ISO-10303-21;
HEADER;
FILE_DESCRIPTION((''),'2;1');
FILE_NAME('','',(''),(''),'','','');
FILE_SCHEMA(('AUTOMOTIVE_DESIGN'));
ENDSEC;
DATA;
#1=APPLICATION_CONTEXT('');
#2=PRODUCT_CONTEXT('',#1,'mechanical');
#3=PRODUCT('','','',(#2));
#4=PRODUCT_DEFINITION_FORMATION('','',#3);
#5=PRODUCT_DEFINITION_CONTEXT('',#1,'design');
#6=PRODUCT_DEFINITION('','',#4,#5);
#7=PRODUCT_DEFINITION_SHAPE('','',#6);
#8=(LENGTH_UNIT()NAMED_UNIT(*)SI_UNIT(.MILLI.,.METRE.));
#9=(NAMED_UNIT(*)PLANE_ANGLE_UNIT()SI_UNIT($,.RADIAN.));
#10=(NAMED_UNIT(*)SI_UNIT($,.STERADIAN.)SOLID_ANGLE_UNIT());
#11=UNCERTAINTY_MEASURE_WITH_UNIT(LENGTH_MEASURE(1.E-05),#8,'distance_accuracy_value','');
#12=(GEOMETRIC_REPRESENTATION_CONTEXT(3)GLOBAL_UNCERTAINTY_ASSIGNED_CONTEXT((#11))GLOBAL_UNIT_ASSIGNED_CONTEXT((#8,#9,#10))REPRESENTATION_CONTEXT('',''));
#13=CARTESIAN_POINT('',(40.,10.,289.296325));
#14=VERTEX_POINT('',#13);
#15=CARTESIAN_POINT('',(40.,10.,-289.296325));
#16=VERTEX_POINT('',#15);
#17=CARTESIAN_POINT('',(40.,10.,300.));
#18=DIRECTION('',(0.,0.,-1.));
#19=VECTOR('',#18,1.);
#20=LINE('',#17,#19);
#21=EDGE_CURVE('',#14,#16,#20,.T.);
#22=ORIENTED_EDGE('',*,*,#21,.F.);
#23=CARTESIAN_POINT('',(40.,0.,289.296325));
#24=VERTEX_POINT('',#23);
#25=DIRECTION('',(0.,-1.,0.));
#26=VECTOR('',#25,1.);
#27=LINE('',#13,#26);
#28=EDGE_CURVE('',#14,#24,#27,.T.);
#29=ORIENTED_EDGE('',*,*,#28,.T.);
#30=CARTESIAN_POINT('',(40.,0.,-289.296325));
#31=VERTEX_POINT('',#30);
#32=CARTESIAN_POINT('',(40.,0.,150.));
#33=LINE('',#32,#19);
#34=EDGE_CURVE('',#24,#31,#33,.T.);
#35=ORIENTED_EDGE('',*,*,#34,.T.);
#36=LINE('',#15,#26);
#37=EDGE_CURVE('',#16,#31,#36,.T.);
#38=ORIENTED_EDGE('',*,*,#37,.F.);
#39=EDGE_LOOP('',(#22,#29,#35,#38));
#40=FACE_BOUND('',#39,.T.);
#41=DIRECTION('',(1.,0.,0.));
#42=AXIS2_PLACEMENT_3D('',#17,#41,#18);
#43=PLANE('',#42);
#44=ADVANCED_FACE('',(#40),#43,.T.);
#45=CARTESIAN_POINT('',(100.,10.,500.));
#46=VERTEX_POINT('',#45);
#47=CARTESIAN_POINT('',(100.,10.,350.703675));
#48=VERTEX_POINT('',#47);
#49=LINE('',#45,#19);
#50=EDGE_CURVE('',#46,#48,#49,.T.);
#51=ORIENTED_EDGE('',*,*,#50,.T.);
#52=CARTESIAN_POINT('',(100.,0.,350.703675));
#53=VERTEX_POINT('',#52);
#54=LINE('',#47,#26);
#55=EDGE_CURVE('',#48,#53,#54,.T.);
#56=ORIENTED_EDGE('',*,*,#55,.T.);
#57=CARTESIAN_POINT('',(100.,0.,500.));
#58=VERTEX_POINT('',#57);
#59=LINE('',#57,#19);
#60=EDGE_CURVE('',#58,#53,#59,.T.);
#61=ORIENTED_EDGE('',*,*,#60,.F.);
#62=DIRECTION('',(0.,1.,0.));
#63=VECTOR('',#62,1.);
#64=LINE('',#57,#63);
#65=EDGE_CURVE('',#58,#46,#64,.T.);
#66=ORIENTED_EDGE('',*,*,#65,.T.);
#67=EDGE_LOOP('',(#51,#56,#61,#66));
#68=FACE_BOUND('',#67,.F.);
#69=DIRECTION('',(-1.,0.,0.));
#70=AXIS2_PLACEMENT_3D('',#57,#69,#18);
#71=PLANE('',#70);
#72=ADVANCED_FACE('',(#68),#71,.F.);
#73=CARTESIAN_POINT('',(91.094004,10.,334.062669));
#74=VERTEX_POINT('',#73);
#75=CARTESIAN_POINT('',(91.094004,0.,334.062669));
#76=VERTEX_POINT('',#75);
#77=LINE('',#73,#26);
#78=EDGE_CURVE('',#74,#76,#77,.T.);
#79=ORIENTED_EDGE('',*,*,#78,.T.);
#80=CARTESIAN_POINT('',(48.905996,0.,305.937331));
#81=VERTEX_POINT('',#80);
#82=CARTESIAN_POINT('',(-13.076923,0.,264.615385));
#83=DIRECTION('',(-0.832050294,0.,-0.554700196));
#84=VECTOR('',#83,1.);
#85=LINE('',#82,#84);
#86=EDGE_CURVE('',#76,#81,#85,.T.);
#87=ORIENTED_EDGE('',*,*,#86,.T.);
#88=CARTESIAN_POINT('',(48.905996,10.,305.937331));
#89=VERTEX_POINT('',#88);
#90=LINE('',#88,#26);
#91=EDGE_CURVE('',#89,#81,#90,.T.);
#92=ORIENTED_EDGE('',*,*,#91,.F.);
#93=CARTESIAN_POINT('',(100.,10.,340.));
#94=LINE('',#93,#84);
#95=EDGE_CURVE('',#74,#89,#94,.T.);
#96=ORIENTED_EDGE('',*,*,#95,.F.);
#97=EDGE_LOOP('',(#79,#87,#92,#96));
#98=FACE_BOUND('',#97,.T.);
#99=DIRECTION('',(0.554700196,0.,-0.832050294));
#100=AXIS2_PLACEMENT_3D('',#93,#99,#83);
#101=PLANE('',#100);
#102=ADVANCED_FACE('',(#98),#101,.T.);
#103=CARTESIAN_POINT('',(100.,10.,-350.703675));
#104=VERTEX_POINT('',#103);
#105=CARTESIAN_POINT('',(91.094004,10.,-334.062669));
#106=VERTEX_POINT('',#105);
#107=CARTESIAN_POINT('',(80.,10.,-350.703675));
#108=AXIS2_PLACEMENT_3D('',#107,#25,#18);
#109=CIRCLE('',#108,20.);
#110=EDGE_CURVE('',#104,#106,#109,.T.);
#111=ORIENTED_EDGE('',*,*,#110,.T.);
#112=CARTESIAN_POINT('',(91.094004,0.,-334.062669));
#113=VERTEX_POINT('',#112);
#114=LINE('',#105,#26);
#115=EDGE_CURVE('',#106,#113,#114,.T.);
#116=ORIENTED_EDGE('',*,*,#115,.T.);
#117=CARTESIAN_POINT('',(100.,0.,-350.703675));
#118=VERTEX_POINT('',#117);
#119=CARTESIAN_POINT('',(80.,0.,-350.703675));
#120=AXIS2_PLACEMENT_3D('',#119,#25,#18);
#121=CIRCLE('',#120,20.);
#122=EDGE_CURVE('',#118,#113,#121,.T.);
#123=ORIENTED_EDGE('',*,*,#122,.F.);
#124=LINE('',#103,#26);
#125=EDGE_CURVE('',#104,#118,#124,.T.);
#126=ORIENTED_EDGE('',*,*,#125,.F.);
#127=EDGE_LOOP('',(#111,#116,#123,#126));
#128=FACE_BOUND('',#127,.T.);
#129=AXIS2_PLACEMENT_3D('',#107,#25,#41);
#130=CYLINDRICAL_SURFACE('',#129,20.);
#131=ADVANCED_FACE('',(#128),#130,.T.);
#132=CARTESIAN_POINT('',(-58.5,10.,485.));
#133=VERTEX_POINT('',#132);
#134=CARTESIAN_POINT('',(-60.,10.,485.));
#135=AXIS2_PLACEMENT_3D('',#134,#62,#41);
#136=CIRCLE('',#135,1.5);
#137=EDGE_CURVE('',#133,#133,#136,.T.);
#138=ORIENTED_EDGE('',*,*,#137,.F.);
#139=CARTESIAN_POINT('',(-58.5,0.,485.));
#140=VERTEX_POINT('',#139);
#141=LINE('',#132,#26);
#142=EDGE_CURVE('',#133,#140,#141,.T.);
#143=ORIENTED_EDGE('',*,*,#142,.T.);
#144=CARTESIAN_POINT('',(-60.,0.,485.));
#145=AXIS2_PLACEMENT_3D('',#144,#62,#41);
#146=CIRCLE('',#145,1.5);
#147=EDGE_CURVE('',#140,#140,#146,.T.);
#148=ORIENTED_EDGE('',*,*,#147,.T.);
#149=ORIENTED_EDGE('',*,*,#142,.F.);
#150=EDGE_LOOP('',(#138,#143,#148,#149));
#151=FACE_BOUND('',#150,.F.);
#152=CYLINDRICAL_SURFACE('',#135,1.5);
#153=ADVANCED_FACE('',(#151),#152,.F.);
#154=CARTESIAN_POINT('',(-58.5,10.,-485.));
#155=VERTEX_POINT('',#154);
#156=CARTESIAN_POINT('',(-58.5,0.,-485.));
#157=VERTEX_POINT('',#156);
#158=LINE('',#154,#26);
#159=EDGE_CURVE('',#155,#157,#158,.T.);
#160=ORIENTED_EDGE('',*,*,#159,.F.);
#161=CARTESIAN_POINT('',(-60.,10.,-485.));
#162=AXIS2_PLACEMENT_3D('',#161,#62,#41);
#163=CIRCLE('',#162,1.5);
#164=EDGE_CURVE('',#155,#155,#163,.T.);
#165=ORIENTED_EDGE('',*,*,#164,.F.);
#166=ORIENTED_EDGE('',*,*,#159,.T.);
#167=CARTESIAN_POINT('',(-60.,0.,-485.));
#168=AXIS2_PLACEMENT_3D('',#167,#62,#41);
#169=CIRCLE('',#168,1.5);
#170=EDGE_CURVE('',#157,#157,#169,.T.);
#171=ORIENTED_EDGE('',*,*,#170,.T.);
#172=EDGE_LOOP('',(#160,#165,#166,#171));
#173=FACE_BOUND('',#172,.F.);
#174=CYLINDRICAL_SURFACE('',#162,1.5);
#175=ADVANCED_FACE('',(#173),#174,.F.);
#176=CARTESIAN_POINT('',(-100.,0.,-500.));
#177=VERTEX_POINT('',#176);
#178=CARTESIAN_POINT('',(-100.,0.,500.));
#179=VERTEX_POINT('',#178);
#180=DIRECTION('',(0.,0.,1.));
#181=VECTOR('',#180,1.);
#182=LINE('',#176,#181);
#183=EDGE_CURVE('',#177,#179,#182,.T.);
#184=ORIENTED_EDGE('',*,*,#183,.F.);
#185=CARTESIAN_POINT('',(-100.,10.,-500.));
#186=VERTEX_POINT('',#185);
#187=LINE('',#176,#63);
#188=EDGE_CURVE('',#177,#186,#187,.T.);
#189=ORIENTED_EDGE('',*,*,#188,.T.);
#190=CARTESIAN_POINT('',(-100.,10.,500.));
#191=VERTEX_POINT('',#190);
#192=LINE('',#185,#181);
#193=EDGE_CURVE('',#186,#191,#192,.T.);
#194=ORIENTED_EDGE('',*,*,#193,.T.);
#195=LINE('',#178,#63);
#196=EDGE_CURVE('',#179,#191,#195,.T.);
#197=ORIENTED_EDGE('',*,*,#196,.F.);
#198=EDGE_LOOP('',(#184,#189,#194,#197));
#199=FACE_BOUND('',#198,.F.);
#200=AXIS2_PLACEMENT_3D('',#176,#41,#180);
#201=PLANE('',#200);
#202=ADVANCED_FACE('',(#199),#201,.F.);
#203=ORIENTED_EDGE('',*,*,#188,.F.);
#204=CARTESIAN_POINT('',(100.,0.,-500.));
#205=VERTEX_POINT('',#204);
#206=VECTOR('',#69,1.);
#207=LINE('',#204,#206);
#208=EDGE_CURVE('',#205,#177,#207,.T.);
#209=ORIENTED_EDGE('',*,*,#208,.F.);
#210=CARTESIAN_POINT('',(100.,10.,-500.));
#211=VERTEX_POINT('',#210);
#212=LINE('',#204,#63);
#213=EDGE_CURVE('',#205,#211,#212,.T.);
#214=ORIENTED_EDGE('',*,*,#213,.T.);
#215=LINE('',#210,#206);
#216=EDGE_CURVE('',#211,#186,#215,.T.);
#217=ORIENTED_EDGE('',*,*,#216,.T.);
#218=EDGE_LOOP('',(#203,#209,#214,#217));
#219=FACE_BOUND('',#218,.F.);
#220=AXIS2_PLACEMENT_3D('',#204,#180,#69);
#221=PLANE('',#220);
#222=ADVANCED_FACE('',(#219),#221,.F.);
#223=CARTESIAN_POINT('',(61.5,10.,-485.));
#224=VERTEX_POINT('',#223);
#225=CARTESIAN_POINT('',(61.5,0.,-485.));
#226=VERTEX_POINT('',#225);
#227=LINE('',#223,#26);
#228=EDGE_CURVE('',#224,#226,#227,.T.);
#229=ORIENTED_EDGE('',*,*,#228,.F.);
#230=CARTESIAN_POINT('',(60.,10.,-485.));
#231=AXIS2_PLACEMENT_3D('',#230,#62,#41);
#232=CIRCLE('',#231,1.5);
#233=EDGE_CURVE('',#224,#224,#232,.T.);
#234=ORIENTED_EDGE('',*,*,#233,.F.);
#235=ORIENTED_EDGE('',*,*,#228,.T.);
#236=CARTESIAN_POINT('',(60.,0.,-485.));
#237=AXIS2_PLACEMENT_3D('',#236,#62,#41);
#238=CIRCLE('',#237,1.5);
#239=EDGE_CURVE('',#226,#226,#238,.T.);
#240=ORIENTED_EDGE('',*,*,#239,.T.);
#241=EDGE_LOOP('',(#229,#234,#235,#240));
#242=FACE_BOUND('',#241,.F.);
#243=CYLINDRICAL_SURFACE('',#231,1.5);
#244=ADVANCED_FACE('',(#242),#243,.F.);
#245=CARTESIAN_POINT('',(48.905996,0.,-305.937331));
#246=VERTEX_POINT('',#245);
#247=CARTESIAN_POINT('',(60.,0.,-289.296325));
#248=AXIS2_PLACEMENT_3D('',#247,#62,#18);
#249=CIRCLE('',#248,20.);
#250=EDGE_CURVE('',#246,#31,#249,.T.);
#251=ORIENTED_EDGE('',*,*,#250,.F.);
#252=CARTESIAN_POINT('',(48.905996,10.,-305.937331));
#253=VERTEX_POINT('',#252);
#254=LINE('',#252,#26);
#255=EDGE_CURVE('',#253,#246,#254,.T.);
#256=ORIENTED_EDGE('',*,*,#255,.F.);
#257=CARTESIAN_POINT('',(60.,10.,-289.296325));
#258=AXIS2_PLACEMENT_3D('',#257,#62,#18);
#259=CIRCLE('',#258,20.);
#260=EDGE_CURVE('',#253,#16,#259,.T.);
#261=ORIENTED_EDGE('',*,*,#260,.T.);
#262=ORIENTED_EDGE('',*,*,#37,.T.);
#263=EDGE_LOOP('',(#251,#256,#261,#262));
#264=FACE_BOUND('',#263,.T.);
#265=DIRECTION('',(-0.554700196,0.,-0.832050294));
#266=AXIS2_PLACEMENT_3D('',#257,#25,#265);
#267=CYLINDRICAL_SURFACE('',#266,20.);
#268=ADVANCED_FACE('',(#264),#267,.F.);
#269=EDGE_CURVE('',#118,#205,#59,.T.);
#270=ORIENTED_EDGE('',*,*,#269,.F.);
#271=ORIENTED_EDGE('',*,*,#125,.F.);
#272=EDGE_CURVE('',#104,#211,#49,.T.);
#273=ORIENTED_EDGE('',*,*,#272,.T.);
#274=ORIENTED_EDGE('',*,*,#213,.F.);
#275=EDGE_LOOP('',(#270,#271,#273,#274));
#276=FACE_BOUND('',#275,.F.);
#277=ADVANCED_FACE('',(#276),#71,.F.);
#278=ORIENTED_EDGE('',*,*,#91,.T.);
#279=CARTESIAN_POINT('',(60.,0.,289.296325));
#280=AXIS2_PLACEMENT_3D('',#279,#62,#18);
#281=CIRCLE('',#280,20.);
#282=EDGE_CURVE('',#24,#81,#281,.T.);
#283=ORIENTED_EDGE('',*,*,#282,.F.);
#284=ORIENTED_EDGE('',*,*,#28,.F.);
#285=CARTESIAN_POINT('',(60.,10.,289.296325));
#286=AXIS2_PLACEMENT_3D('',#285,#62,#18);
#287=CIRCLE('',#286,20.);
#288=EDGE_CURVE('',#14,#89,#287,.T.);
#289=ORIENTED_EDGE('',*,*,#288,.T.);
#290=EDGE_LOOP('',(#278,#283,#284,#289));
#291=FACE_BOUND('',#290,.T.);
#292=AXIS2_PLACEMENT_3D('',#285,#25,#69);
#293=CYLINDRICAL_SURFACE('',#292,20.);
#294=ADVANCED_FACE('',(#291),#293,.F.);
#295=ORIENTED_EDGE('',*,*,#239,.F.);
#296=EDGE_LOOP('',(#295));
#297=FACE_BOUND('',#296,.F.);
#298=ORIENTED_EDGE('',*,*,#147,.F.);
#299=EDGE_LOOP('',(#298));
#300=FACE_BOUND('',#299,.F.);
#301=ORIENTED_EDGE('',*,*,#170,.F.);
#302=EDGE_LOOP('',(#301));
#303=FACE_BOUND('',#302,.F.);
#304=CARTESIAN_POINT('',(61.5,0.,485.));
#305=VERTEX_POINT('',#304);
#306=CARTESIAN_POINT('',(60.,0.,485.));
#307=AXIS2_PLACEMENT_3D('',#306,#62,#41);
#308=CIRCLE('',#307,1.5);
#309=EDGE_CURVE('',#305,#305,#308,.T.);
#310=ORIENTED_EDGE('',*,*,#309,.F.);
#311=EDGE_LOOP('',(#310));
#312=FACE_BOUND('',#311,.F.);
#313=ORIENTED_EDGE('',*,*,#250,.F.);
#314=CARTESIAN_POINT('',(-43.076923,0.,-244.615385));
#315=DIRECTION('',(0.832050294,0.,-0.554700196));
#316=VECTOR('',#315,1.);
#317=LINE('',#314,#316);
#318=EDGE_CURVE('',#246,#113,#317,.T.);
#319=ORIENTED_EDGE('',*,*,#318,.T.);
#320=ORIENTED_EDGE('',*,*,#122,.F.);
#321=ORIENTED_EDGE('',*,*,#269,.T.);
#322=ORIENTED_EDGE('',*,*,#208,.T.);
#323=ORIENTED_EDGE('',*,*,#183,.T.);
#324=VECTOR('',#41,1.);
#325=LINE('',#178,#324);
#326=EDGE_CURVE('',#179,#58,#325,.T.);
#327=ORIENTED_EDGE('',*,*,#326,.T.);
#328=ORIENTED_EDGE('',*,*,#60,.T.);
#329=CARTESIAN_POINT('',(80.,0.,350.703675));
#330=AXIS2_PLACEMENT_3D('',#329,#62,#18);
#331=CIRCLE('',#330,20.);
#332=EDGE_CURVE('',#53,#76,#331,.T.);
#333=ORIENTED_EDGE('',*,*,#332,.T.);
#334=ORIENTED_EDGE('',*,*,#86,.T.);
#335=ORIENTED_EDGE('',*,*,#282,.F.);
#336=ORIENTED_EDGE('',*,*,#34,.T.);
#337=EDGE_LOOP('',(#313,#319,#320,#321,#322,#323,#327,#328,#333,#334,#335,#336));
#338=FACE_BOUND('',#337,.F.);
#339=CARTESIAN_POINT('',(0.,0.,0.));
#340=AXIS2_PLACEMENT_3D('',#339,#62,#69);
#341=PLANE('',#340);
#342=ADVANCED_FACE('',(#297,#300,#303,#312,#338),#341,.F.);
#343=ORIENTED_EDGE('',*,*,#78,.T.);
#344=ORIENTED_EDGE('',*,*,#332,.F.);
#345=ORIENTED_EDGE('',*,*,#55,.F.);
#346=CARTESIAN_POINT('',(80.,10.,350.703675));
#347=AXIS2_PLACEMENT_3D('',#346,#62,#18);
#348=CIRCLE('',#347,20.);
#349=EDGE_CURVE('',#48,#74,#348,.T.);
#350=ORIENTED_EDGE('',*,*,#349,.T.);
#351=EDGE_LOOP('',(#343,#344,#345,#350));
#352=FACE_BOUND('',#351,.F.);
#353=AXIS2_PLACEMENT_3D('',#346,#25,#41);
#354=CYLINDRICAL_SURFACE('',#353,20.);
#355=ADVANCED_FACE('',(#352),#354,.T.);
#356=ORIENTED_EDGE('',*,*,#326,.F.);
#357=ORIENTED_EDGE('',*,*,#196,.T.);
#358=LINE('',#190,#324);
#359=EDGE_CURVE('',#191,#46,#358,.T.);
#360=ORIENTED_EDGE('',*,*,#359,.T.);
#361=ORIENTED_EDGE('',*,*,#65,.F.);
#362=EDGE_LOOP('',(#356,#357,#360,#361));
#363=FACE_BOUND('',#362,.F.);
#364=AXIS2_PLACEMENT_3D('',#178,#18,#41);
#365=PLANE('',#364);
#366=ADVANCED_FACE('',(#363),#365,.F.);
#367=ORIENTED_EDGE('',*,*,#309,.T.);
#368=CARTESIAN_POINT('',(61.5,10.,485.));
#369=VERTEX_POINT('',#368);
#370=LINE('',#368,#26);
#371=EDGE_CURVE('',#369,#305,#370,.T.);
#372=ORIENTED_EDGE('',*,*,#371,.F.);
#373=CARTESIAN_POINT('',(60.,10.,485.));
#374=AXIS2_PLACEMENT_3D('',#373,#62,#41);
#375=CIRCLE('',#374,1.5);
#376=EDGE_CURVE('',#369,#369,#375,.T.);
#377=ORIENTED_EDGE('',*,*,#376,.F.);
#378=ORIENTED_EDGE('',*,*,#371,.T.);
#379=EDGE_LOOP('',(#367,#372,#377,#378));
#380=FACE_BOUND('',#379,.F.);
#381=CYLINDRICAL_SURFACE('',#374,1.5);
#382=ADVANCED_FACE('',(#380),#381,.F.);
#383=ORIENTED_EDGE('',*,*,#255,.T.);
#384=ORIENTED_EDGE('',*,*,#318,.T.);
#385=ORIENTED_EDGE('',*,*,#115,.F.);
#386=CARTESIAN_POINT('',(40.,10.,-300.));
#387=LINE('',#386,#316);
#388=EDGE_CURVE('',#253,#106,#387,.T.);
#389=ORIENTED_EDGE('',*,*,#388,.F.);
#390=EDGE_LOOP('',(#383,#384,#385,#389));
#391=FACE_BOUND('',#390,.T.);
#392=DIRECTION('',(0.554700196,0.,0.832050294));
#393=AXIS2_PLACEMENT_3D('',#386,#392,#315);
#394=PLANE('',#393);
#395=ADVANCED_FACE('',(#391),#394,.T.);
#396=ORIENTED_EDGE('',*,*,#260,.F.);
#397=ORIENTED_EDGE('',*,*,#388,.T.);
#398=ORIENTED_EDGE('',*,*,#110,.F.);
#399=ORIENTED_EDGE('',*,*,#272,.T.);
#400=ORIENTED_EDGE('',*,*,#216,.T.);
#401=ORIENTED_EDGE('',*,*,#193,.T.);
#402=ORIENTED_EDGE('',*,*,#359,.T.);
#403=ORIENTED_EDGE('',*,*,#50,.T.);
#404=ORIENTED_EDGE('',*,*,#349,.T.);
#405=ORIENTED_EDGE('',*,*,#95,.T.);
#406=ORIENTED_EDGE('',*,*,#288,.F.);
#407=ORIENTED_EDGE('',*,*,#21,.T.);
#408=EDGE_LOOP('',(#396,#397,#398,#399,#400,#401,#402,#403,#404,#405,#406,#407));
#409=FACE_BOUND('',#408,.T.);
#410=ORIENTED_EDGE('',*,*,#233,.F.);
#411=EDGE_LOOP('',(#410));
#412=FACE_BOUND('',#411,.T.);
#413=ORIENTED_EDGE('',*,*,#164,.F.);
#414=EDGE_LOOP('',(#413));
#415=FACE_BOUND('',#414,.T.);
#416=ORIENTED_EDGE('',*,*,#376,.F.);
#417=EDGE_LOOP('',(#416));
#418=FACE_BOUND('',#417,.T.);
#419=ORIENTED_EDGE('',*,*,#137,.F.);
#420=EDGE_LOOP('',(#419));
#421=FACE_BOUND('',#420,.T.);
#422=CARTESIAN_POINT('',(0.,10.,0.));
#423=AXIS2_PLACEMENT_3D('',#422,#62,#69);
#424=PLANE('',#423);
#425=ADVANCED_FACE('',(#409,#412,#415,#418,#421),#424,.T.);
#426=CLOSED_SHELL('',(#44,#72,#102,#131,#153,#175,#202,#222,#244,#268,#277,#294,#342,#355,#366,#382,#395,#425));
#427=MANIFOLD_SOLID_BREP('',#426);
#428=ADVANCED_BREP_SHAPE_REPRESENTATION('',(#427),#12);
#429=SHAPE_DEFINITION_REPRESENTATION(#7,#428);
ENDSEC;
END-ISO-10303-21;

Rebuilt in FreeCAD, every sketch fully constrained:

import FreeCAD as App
import Part
import Sketcher


def edges_at(feature, points):
    """Names of the edges that pass closest to the given points."""
    edges = feature.Shape.Edges
    near = lambda p: min(range(len(edges)), key=lambda i: edges[i].distToShape(Part.Vertex(*p))[0])
    return sorted({f"Edge{near(p) + 1}" for p in points})

doc = App.newDocument("Part")
params = doc.addObject("Spreadsheet::Sheet", "Params")
for row, (alias, value) in enumerate([
    ("sketch1_width", "200 mm"),
    ("sketch1_height", "1000 mm"),
    ("pad1_length", "10 mm"),
    ("sketch2_height", "600 mm"),
    ("sketch2_height2", "680 mm"),
    ("fillet_radius", "20 mm"),
    ("sketch3_diameter", "3 mm"),
], start=1):
    params.set(f"A{row}", alias)
    params.set(f"B{row}", "=" + value)
    params.setAlias(f"B{row}", alias)

body = doc.addObject("PartDesign::Body", "Body")

# Sketch on XZ plane
sketch1 = body.newObject("Sketcher::SketchObject", "Sketch")
sketch1.AttachmentSupport = (doc.getObject("XZ_Plane"), [""])
sketch1.MapMode = "FlatFace"
sketch1.addGeometry(Part.LineSegment(App.Vector(-100, -500, 0), App.Vector(-100, 500, 0)), False)
sketch1.addGeometry(Part.LineSegment(App.Vector(-100, 500, 0), App.Vector(100, 500, 0)), False)
sketch1.addGeometry(Part.LineSegment(App.Vector(100, 500, 0), App.Vector(100, -500, 0)), False)
sketch1.addGeometry(Part.LineSegment(App.Vector(100, -500, 0), App.Vector(-100, -500, 0)), False)
sketch1.addConstraint(Sketcher.Constraint("Coincident", 0, 2, 1, 1))
sketch1.addConstraint(Sketcher.Constraint("Coincident", 1, 2, 2, 1))
sketch1.addConstraint(Sketcher.Constraint("Coincident", 2, 2, 3, 1))
sketch1.addConstraint(Sketcher.Constraint("Coincident", 3, 2, 0, 1))
sketch1.addConstraint(Sketcher.Constraint("Vertical", 0))
sketch1.addConstraint(Sketcher.Constraint("Horizontal", 1))
sketch1.addConstraint(Sketcher.Constraint("Vertical", 2))
sketch1.addConstraint(Sketcher.Constraint("Horizontal", 3))
sketch1.addConstraint(Sketcher.Constraint("Symmetric", 0, 2, 2, 2, -1, 1))
sketch1.addConstraint(Sketcher.Constraint("DistanceX", 1, 1, 1, 2, 200.0))
sketch1.addConstraint(Sketcher.Constraint("DistanceY", 0, 1, 0, 2, 1000.0))
sketch1.setExpression("Constraints[9]", "Params.sketch1_width")
sketch1.setExpression("Constraints[10]", "Params.sketch1_height")
pad1 = body.newObject("PartDesign::Pad", "Pad")
pad1.Profile = sketch1
pad1.setExpression("Length", "Params.pad1_length")
pad1.Reversed = True

# Sketch on XZ plane
sketch2 = body.newObject("Sketcher::SketchObject", "Sketch001")
sketch2.AttachmentSupport = (doc.getObject("XZ_Plane"), [""])
sketch2.MapMode = "FlatFace"
sketch2.AttachmentOffset = App.Placement(App.Vector(0, 0, -10), App.Rotation())
sketch2.addGeometry(Part.LineSegment(App.Vector(40, 300, 0), App.Vector(100, 340, 0)), False)
sketch2.addGeometry(Part.LineSegment(App.Vector(100, 340, 0), App.Vector(100, -340, 0)), False)
sketch2.addGeometry(Part.LineSegment(App.Vector(100, -340, 0), App.Vector(40, -300, 0)), False)
sketch2.addGeometry(Part.LineSegment(App.Vector(40, -300, 0), App.Vector(40, 300, 0)), False)
sketch2.addConstraint(Sketcher.Constraint("Coincident", 0, 2, 1, 1))
sketch2.addConstraint(Sketcher.Constraint("Coincident", 1, 2, 2, 1))
sketch2.addConstraint(Sketcher.Constraint("Coincident", 2, 2, 3, 1))
sketch2.addConstraint(Sketcher.Constraint("Coincident", 3, 2, 0, 1))
sketch2.addConstraint(Sketcher.Constraint("Vertical", 1))
sketch2.addConstraint(Sketcher.Constraint("Vertical", 3))
sketch2.addConstraint(Sketcher.Constraint("Equal", 0, 2))
sketch2.addConstraint(Sketcher.Constraint("DistanceY", 3, 1, 3, 2, 600.0))
sketch2.addConstraint(Sketcher.Constraint("DistanceY", 2, 2, -1, 1, 300.0))
sketch2.addConstraint(Sketcher.Constraint("DistanceY", 1, 2, 1, 1, 680.0))
sketch2.addConstraint(Sketcher.Constraint("DistanceX", -1, 1, 0, 2, 100.0))
sketch2.addConstraint(Sketcher.Constraint("DistanceX", -1, 1, 2, 2, 40.0))
sketch2.setExpression("Constraints[7]", "Params.sketch2_height")
sketch2.setExpression("Constraints[9]", "Params.sketch2_height2")
pocket1 = body.newObject("PartDesign::Pocket", "Pocket")
pocket1.Profile = sketch2
pocket1.Type = "ThroughAll"
pocket1.Reversed = True
doc.recompute()

fillet = body.newObject("PartDesign::Fillet", "Fillet")
fillet.Base = (pocket1, edges_at(pocket1, [
    (40, 5, 300),
    (100, 5, 340),
    (40, 5, -300),
    (100, 5, -340),
]))
fillet.setExpression("Radius", "Params.fillet_radius")

# Sketch on XZ plane
sketch3 = body.newObject("Sketcher::SketchObject", "Sketch002")
sketch3.AttachmentSupport = (doc.getObject("XZ_Plane"), [""])
sketch3.MapMode = "FlatFace"
sketch3.AttachmentOffset = App.Placement(App.Vector(0, 0, -10), App.Rotation())
sketch3.addGeometry(Part.Circle(App.Vector(-60, 485, 0), App.Vector(0, 0, 1), 1.5), False)
sketch3.addGeometry(Part.Circle(App.Vector(60, 485, 0), App.Vector(0, 0, 1), 1.5), False)
sketch3.addGeometry(Part.Circle(App.Vector(-60, -485, 0), App.Vector(0, 0, 1), 1.5), False)
sketch3.addGeometry(Part.Circle(App.Vector(60, -485, 0), App.Vector(0, 0, 1), 1.5), False)
sketch3.addConstraint(Sketcher.Constraint("Equal", 0, 1))
sketch3.addConstraint(Sketcher.Constraint("Equal", 1, 2))
sketch3.addConstraint(Sketcher.Constraint("Equal", 2, 3))
sketch3.addConstraint(Sketcher.Constraint("Symmetric", 1, 3, 2, 3, -1, 1))
sketch3.addConstraint(Sketcher.Constraint("Symmetric", 0, 3, 3, 3, -1, 1))
sketch3.addConstraint(Sketcher.Constraint("Symmetric", 0, 3, 1, 3, -2))
sketch3.addConstraint(Sketcher.Constraint("Diameter", 0, 3.0))
sketch3.addConstraint(Sketcher.Constraint("DistanceX", 0, 3, -1, 1, 60.0))
sketch3.addConstraint(Sketcher.Constraint("DistanceY", -1, 1, 0, 3, 485.0))
sketch3.setExpression("Constraints[6]", "Params.sketch3_diameter")
pocket2 = body.newObject("PartDesign::Pocket", "Pocket001")
pocket2.Profile = sketch3
pocket2.Type = "ThroughAll"
pocket2.Reversed = True

doc.recompute()
